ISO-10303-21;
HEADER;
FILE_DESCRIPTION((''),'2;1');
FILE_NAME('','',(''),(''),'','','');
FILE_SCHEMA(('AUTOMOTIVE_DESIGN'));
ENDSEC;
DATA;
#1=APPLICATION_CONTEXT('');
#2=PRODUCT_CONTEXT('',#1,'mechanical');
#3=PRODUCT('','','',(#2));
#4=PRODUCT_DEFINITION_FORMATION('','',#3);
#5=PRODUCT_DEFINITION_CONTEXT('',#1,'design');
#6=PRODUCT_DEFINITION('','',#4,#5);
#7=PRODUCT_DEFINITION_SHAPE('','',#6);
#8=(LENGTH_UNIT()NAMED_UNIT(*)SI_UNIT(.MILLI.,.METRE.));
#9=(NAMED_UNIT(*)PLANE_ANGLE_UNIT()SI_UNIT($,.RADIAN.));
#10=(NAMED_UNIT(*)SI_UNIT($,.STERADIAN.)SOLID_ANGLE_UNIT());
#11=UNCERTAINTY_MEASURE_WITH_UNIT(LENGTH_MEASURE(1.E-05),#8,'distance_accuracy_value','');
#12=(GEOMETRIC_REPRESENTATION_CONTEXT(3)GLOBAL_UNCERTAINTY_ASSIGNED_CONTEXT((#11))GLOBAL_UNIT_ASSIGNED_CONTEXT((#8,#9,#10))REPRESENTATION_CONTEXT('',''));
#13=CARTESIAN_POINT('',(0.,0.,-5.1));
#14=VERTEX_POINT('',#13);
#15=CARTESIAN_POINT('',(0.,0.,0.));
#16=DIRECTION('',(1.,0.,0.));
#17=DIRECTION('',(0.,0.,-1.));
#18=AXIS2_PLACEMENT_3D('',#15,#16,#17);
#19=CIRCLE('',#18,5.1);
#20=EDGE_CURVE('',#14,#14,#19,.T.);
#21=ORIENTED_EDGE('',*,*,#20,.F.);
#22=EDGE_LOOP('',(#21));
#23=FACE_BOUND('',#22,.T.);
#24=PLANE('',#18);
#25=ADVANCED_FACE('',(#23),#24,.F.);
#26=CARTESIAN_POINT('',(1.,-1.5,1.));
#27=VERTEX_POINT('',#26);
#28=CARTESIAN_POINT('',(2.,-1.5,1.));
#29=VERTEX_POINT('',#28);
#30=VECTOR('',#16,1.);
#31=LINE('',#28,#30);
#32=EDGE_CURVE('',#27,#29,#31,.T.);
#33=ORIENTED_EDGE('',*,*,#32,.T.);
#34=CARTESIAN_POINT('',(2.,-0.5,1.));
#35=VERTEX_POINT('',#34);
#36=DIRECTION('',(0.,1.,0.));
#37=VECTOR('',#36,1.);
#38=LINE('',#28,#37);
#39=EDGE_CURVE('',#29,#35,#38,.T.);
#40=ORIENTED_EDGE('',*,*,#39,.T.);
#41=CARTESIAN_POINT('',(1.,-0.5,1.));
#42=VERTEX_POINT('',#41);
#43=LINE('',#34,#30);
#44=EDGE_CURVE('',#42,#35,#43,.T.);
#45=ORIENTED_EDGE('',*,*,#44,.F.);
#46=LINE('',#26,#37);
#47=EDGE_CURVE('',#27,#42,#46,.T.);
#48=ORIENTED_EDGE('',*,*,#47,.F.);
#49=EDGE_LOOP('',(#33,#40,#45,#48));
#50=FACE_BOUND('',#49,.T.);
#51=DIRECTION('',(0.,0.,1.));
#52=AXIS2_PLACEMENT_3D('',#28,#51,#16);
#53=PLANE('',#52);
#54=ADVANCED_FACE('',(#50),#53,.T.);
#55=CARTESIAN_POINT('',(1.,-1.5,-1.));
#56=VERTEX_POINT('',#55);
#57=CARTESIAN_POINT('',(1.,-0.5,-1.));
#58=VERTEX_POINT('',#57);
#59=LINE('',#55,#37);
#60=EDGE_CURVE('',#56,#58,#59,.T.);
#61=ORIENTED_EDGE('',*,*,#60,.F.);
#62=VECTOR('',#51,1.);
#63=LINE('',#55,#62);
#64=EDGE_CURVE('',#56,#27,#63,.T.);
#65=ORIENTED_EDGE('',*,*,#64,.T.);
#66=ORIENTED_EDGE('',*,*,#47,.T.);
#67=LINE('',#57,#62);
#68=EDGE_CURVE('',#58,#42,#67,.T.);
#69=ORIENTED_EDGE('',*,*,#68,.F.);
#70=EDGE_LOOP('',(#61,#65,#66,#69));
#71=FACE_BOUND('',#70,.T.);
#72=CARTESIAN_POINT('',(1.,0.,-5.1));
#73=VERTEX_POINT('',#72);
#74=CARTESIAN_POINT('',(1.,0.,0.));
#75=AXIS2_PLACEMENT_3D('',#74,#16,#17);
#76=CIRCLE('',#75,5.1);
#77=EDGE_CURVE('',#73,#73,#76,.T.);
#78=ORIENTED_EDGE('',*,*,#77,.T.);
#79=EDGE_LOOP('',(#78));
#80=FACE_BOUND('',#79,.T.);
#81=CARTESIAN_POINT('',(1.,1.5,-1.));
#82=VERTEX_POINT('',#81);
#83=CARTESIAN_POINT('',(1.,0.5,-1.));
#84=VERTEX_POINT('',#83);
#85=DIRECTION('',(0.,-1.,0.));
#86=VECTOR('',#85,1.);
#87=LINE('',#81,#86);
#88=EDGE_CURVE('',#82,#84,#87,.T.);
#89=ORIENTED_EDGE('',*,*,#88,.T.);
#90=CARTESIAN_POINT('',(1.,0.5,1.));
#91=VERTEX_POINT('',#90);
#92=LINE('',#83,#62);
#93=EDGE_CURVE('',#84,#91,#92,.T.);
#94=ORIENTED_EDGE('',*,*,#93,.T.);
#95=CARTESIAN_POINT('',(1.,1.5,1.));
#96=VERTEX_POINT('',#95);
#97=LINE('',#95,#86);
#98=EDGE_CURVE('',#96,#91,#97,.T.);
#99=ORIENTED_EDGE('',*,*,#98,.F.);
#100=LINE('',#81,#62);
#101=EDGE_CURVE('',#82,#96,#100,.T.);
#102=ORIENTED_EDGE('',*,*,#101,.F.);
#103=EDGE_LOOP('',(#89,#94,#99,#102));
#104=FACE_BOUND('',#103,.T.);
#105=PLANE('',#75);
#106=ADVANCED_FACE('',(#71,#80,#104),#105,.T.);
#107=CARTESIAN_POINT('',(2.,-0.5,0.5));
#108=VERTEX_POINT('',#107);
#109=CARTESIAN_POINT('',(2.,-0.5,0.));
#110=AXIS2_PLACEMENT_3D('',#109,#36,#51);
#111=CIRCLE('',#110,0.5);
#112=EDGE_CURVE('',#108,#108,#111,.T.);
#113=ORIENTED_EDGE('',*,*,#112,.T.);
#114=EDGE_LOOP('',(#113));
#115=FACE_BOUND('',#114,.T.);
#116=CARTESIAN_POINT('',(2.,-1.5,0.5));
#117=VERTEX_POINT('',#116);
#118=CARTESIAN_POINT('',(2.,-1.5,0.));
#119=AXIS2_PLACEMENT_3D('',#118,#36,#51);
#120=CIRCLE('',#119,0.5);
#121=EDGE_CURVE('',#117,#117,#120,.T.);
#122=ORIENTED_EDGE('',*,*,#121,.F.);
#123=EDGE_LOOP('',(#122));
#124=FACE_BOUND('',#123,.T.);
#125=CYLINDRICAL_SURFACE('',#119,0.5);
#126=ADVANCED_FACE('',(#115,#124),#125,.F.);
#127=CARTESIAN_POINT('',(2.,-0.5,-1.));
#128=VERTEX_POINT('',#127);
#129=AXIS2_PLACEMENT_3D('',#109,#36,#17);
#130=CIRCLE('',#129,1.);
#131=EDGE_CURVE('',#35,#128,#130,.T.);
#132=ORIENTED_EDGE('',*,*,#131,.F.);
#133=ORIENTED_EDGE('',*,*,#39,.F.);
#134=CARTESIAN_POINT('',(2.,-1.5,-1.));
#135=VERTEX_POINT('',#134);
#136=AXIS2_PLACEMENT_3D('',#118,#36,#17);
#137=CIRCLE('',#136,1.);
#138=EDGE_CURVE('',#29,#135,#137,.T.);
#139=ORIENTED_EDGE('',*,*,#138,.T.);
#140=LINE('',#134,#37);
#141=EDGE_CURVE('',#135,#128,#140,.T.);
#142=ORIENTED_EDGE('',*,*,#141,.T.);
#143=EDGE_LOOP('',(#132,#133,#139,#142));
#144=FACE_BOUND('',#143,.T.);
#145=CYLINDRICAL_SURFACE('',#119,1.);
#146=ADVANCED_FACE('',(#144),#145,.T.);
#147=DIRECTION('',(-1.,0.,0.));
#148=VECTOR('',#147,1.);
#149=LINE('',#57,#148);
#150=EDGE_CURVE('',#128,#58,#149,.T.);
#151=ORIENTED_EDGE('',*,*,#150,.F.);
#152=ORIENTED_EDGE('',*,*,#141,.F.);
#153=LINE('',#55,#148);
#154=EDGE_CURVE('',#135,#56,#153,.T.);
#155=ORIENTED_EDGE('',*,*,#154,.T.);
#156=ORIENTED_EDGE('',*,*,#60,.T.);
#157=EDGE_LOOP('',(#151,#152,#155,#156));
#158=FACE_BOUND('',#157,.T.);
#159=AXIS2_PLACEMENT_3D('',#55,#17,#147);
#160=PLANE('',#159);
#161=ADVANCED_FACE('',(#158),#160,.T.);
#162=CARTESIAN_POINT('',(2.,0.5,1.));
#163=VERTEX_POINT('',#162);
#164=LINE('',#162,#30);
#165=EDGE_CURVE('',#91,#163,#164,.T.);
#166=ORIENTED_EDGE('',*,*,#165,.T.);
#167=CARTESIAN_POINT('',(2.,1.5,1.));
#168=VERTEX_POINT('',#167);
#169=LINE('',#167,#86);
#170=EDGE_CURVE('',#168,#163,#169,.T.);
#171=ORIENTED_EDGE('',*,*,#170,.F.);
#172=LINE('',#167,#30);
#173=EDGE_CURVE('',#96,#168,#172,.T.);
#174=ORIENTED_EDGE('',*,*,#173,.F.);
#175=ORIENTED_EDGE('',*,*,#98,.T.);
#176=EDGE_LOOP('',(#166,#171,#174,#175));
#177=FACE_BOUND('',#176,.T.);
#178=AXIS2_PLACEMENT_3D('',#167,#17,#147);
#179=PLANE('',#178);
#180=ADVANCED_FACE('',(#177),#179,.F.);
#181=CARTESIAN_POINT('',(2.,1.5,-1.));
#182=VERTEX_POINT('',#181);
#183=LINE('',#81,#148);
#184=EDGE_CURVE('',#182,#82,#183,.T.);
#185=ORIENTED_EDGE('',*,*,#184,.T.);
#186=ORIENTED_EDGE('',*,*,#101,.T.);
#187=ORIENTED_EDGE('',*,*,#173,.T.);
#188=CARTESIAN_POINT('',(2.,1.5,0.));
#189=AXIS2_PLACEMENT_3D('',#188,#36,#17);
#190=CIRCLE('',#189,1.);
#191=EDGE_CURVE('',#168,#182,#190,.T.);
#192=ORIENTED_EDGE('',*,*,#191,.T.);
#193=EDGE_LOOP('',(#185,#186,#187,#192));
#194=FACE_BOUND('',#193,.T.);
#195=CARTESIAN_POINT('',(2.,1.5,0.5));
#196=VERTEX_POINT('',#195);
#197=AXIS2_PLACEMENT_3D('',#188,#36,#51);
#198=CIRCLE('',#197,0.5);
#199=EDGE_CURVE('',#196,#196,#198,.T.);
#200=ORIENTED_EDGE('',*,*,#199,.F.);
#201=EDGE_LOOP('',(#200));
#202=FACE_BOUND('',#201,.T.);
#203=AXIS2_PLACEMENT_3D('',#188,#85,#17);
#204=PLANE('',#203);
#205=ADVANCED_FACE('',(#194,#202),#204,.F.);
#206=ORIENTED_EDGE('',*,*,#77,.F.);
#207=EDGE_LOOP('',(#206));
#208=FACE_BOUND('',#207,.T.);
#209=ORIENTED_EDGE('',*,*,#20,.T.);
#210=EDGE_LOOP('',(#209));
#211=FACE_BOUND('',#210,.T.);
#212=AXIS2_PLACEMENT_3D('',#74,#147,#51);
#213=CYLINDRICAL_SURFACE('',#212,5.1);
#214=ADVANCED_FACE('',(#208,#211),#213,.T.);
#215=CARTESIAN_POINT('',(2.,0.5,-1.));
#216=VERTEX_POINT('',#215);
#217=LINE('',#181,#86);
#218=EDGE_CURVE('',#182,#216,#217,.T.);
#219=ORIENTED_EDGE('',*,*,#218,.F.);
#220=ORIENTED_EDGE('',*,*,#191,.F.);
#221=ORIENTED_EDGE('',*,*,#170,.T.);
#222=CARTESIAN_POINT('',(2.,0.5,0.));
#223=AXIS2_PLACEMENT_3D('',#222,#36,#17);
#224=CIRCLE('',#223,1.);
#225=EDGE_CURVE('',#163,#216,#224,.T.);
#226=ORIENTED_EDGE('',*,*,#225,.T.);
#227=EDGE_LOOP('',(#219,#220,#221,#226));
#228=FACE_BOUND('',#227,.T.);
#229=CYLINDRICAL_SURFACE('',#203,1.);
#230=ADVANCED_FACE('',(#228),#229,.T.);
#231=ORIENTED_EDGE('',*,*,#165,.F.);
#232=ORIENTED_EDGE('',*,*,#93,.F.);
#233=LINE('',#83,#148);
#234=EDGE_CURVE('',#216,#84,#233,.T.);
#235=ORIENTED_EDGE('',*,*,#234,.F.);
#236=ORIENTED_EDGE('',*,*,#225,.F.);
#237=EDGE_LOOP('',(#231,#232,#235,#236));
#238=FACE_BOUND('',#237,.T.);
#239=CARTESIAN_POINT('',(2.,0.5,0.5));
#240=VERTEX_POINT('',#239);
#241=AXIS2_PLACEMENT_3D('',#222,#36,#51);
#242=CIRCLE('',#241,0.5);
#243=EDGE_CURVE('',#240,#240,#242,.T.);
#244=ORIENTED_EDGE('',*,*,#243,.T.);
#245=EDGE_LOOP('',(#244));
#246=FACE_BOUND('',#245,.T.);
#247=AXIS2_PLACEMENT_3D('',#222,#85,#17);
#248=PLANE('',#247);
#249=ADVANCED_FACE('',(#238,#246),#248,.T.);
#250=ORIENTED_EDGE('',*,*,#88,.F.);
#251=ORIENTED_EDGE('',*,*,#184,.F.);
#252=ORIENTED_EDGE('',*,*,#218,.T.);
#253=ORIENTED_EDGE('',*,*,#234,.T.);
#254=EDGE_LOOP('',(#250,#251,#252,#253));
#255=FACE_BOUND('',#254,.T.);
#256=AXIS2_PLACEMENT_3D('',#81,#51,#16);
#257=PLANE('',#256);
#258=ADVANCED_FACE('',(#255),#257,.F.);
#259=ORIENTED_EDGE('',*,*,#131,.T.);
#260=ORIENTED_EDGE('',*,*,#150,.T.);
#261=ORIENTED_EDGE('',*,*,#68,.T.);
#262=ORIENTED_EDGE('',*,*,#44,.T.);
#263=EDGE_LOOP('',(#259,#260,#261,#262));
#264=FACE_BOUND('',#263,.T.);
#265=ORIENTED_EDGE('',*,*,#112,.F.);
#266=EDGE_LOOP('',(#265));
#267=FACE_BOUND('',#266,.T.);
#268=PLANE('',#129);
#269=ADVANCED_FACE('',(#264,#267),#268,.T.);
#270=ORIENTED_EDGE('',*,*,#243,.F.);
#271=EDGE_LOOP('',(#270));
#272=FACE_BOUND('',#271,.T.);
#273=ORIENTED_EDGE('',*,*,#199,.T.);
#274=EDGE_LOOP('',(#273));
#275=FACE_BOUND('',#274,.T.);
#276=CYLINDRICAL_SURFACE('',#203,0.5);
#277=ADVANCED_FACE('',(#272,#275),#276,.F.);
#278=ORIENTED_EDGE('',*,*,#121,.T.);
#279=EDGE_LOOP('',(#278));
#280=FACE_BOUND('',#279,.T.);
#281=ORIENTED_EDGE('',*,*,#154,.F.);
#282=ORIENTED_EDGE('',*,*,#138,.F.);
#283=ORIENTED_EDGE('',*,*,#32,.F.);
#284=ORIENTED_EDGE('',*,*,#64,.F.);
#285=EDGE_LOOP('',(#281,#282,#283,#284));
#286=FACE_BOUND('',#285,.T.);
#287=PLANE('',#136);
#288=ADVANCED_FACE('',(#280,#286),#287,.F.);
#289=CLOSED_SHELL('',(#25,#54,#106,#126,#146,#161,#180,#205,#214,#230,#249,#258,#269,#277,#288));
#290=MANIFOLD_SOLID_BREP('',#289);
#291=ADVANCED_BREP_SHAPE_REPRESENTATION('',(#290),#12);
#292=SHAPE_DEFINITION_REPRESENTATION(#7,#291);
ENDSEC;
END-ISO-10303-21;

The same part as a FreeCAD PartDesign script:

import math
import FreeCAD as App
import Part
import Sketcher
from FreeCAD import Vector

doc = App.newDocument("Part")
body = doc.addObject("PartDesign::Body", "Body")

sketch1 = body.newObject("Sketcher::SketchObject", "Sketch")
sketch1.AttachmentSupport = (doc.getObject("YZ_Plane"), [""])
sketch1.MapMode = "FlatFace"
sketch1.addGeometry(Part.Circle(Vector(0, 0, 0), Vector(0, 0, 1), 5), False)
sketch1.addConstraint(Sketcher.Constraint("Coincident", 0, 3, -1, 1))
sketch1.addConstraint(Sketcher.Constraint("Diameter", 0, 10.2))
pad1 = body.newObject("PartDesign::Pad", "Pad")
pad1.Profile = sketch1
pad1.Length = 1

sketch2 = body.newObject("Sketcher::SketchObject", "Sketch001")
sketch2.AttachmentSupport = (doc.getObject("XZ_Plane"), [""])
sketch2.MapMode = "FlatFace"
sketch2.AttachmentOffset = App.Placement(Vector(0, 0, -0.5), App.Rotation())
sketch2.addGeometry(Part.LineSegment(Vector(2, -1, 0), Vector(1, -1, 0)), False)
sketch2.addGeometry(Part.LineSegment(Vector(1, -1, 0), Vector(1, 1, 0)), False)
sketch2.addGeometry(Part.LineSegment(Vector(1, 1, 0), Vector(2, 1, 0)), False)
sketch2.addGeometry(Part.ArcOfCircle(Part.Circle(Vector(2, 0, 0), Vector(0, 0, 1), 1), math.radians(-90), math.radians(90)), False)
sketch2.addGeometry(Part.Circle(Vector(2, 0, 0), Vector(0, 0, 1), 0.5), False)
sketch2.addConstraint(Sketcher.Constraint("Coincident", 0, 2, 1, 1))
sketch2.addConstraint(Sketcher.Constraint("Coincident", 1, 2, 2, 1))
sketch2.addConstraint(Sketcher.Constraint("Tangent", 2, 2, 3, 2))
sketch2.addConstraint(Sketcher.Constraint("Tangent", 3, 1, 0, 1))
sketch2.addConstraint(Sketcher.Constraint("Horizontal", 0))
sketch2.addConstraint(Sketcher.Constraint("Vertical", 1))
sketch2.addConstraint(Sketcher.Constraint("Horizontal", 2))
sketch2.addConstraint(Sketcher.Constraint("Coincident", 4, 3, 3, 3))
sketch2.addConstraint(Sketcher.Constraint("PointOnObject", 3, 3, -1))
sketch2.addConstraint(Sketcher.Constraint("Diameter", 4, 1.0))
sketch2.addConstraint(Sketcher.Constraint("Radius", 3, 1.0))
sketch2.addConstraint(Sketcher.Constraint("DistanceX", 0, 2, 0, 1, 1.0))
sketch2.addConstraint(Sketcher.Constraint("DistanceX", -1, 1, 3, 3, 2.0))
pad2 = body.newObject("PartDesign::Pad", "Pad001")
pad2.Profile = sketch2
pad2.Length = 1
pad2.Reversed = True
doc.recompute()

mirrored = body.newObject("PartDesign::Mirrored", "Mirrored")
mirrored.Originals = [pad2]
mirrored.MirrorPlane = (doc.getObject("XZ_Plane"), [""])
body.Tip = mirrored

doc.recompute()
